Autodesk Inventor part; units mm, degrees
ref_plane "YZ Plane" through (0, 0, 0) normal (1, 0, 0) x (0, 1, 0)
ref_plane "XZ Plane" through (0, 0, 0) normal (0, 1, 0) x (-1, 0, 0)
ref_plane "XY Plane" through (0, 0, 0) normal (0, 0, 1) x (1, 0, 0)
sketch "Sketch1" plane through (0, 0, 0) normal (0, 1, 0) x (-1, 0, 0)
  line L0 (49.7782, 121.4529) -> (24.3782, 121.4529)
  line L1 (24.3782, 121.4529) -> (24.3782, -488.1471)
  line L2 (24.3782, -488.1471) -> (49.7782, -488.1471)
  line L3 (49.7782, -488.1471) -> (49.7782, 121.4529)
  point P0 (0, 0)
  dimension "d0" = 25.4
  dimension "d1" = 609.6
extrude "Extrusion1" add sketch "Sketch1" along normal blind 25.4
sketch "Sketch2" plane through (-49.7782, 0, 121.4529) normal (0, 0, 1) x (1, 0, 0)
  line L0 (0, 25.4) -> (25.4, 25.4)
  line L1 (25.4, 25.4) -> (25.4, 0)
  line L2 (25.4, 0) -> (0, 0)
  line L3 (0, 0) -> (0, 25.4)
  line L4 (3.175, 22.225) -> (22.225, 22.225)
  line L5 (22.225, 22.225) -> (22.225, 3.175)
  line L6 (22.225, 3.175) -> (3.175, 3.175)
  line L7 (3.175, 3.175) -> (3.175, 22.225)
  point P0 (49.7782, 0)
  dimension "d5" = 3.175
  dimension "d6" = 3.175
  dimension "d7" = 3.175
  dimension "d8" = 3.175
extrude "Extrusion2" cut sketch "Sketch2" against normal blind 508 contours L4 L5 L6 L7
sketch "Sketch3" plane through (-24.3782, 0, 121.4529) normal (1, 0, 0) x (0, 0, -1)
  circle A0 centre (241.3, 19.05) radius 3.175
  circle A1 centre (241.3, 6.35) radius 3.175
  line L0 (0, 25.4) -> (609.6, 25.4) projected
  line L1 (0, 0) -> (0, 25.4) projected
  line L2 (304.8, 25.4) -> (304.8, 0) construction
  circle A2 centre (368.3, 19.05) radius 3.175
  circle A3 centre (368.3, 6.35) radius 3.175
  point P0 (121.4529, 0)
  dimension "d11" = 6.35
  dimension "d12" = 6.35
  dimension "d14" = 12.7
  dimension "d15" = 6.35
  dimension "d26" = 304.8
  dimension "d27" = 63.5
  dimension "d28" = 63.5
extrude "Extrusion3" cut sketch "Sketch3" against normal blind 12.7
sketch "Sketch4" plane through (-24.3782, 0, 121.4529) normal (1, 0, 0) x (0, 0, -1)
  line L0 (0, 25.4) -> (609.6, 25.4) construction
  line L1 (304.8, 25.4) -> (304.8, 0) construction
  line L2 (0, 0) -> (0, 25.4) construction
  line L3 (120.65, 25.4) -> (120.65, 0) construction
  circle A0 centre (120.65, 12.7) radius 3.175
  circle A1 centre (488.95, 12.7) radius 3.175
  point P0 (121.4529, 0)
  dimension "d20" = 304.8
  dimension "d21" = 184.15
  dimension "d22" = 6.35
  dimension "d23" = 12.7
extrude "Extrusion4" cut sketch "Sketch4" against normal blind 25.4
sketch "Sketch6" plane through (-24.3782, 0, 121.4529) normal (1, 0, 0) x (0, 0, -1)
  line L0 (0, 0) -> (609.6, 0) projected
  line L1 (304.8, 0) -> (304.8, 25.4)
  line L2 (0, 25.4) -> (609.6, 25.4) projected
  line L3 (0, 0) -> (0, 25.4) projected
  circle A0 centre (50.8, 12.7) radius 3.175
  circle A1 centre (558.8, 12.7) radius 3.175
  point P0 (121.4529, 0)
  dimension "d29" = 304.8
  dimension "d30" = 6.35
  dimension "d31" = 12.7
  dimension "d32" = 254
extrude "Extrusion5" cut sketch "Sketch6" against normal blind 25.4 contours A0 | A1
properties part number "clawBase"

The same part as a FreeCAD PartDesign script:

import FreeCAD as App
import Part
import Sketcher

V = App.Vector
Q = App.Units.Quantity

doc = App.newDocument("Part")
body = doc.addObject("PartDesign::Body", "Body")

# Sketch on XZ plane
sketch1 = body.newObject("Sketcher::SketchObject", "Sketch")
sketch1.AttachmentSupport = (doc.getObject("XZ_Plane"), [""])
sketch1.MapMode = "FlatFace"
sketch1.addGeometry([
    Part.LineSegment(V(-49.7782, -488.1471, 0), V(-49.7782, 121.4529, 0)),
    Part.LineSegment(V(-49.7782, 121.4529, 0), V(-24.3782, 121.4529, 0)),
    Part.LineSegment(V(-24.3782, 121.4529, 0), V(-24.3782, -488.1471, 0)),
    Part.LineSegment(V(-24.3782, -488.1471, 0), V(-49.7782, -488.1471, 0)),
], False)
sketch1.addConstraint([
    Sketcher.Constraint("Coincident", 0, 2, 1, 1),
    Sketcher.Constraint("Coincident", 1, 2, 2, 1),
    Sketcher.Constraint("Coincident", 2, 2, 3, 1),
    Sketcher.Constraint("Coincident", 3, 2, 0, 1),
    Sketcher.Constraint("Vertical", 0),
    Sketcher.Constraint("Horizontal", 1),
    Sketcher.Constraint("Vertical", 2),
    Sketcher.Constraint("Horizontal", 3),
    Sketcher.Constraint("DistanceX", 1, 1, 1, 2, Q("1 in")),
    Sketcher.Constraint("DistanceY", 0, 1, 0, 2, Q("24 in")),
    Sketcher.Constraint("DistanceY", -1, 1, 0, 2, Q("4.7816 in")),
    Sketcher.Constraint("DistanceX", 0, 2, -1, 1, 49.7782),
])
pad1 = body.newObject("PartDesign::Pad", "Pad")
pad1.Profile = sketch1
pad1.Length = Q("1 in")
pad1.Reversed = True

# Sketch on XY plane
sketch2 = body.newObject("Sketcher::SketchObject", "Sketch001")
sketch2.AttachmentSupport = (doc.getObject("XY_Plane"), [""])
sketch2.MapMode = "FlatFace"
sketch2.AttachmentOffset = App.Placement(V(0, 0, 4.7816102 * 25.4), App.Rotation())
sketch2.addGeometry([
    Part.LineSegment(V(-27.5532, 22.225, 0), V(-46.6032, 22.225, 0)),
    Part.LineSegment(V(-46.6032, 22.225, 0), V(-46.6032, 3.175, 0)),
    Part.LineSegment(V(-46.6032, 3.175, 0), V(-27.5532, 3.175, 0)),
    Part.LineSegment(V(-27.5532, 3.175, 0), V(-27.5532, 22.225, 0)),
], False)
sketch2.addConstraint([
    Sketcher.Constraint("Coincident", 0, 2, 1, 1),
    Sketcher.Constraint("Coincident", 1, 2, 2, 1),
    Sketcher.Constraint("Coincident", 2, 2, 3, 1),
    Sketcher.Constraint("Coincident", 3, 2, 0, 1),
    Sketcher.Constraint("Horizontal", 0),
    Sketcher.Constraint("Vertical", 1),
    Sketcher.Constraint("Horizontal", 2),
    Sketcher.Constraint("Vertical", 3),
    Sketcher.Constraint("Equal", 2, 1),
    Sketcher.Constraint("DistanceY", -1, 1, 1, 2, Q("0.125 in")),
    Sketcher.Constraint("DistanceX", 0, 2, 0, 1, Q("0.75 in")),
    Sketcher.Constraint("DistanceX", 0, 2, -1, 1, 46.6032),
])
pocket1 = body.newObject("PartDesign::Pocket", "Pocket")
pocket1.Profile = sketch2
pocket1.Length = Q("20 in")

# Sketch on YZ plane
sketch3 = body.newObject("Sketcher::SketchObject", "Sketch002")
sketch3.AttachmentSupport = (doc.getObject("YZ_Plane"), [""])
sketch3.MapMode = "FlatFace"
sketch3.AttachmentOffset = App.Placement(V(0, 0, -24.3782), App.Rotation())
sketch3.addGeometry([
    Part.Circle(V(19.05, -119.8471, 0), V(0, 0, 1), 3.175),
    Part.Circle(V(6.35, -119.8471, 0), V(0, 0, 1), 3.175),
    Part.Circle(V(19.05, -246.8471, 0), V(0, 0, 1), 3.175),
    Part.Circle(V(6.35, -246.8471, 0), V(0, 0, 1), 3.175),
], False)
sketch3.addConstraint([
    Sketcher.Constraint("Equal", 0, 1),
    Sketcher.Constraint("Equal", 1, 2),
    Sketcher.Constraint("Equal", 2, 3),
    Sketcher.Constraint("Horizontal", 0, 3, 1, 3),
    Sketcher.Constraint("Horizontal", 2, 3, 3, 3),
    Sketcher.Constraint("Vertical", 0, 3, 2, 3),
    Sketcher.Constraint("Vertical", 1, 3, 3, 3),
    Sketcher.Constraint("Diameter", 0, Q("0.25 in")),
    Sketcher.Constraint("DistanceX", 1, 3, 0, 3, Q("0.5 in")),
    Sketcher.Constraint("DistanceX", -1, 1, 1, 3, Q("0.25 in")),
    Sketcher.Constraint("DistanceY", 2, 3, 0, 3, Q("5 in")),
    Sketcher.Constraint("DistanceY", 0, 3, -1, 1, Q("4.7184 in")),
])
pocket2 = body.newObject("PartDesign::Pocket", "Pocket001")
pocket2.Profile = sketch3
pocket2.Length = Q("0.5 in")

# Sketch on YZ plane
sketch4 = body.newObject("Sketcher::SketchObject", "Sketch003")
sketch4.AttachmentSupport = (doc.getObject("YZ_Plane"), [""])
sketch4.MapMode = "FlatFace"
sketch4.AttachmentOffset = App.Placement(V(0, 0, -24.3782), App.Rotation())
sketch4.addGeometry([
    Part.Circle(V(12.7, 0.8029, 0), V(0, 0, 1), 3.175),
    Part.Circle(V(12.7, -367.4971, 0), V(0, 0, 1), 3.175),
], False)
sketch4.addConstraint([
    Sketcher.Constraint("Equal", 0, 1),
    Sketcher.Constraint("Vertical", 0, 3, 1, 3),
    Sketcher.Constraint("Diameter", 0, Q("0.25 in")),
    Sketcher.Constraint("DistanceX", -1, 1, 0, 3, Q("0.5 in")),
    Sketcher.Constraint("DistanceY", 1, 3, 0, 3, Q("14.5 in")),
    Sketcher.Constraint("DistanceY", -1, 1, 0, 3, Q("0.0316 in")),
])
pocket3 = body.newObject("PartDesign::Pocket", "Pocket002")
pocket3.Profile = sketch4
pocket3.Length = Q("1 in")

# Sketch on YZ plane
sketch5 = body.newObject("Sketcher::SketchObject", "Sketch004")
sketch5.AttachmentSupport = (doc.getObject("YZ_Plane"), [""])
sketch5.MapMode = "FlatFace"
sketch5.AttachmentOffset = App.Placement(V(0, 0, -24.3782), App.Rotation())
sketch5.addGeometry([
    Part.Circle(V(12.7, 70.6529, 0), V(0, 0, 1), 3.175),
    Part.Circle(V(12.7, -437.3471, 0), V(0, 0, 1), 3.175),
], False)
sketch5.addConstraint([
    Sketcher.Constraint("Equal", 0, 1),
    Sketcher.Constraint("Vertical", 0, 3, 1, 3),
    Sketcher.Constraint("Diameter", 0, Q("0.25 in")),
    Sketcher.Constraint("DistanceX", -1, 1, 0, 3, Q("0.5 in")),
    Sketcher.Constraint("DistanceY", 1, 3, 0, 3, Q("20 in")),
    Sketcher.Constraint("DistanceY", -1, 1, 0, 3, Q("2.7816 in")),
])
pocket4 = body.newObject("PartDesign::Pocket", "Pocket003")
pocket4.Profile = sketch5
pocket4.Length = Q("1 in")

doc.recompute()
